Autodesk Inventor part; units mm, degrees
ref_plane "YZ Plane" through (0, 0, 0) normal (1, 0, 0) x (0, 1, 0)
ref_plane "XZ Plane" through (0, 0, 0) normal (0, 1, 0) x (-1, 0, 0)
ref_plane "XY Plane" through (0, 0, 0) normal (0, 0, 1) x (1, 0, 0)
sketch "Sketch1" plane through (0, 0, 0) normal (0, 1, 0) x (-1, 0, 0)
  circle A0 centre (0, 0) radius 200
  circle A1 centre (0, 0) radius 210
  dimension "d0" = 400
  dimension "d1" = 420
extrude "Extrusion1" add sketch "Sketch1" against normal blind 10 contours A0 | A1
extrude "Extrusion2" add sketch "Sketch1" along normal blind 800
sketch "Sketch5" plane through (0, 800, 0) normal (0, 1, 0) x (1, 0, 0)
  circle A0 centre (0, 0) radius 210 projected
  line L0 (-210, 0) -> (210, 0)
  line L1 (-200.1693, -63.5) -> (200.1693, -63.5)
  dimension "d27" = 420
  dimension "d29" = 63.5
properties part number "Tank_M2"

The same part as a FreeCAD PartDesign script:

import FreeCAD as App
import Part
import Sketcher

V = App.Vector
Q = App.Units.Quantity

doc = App.newDocument("Part")
params = doc.addObject("Spreadsheet::Sheet", "Params")
for row, (alias, value) in enumerate([
    ("sketch1_diameter", "420 mm"),
    ("pad1_length", "10 mm"),
    ("sketch2_diameter", "420 mm"),
    ("sketch2_diameter2", "400 mm"),
    ("pad2_length", "800 mm"),
], start=1):
    params.set(f"A{row}", alias)
    params.set(f"B{row}", "=" + value)
    params.setAlias(f"B{row}", alias)

body = doc.addObject("PartDesign::Body", "Body")

sketch1 = body.newObject("Sketcher::SketchObject", "Sketch")
sketch1.AttachmentSupport = (doc.getObject("XZ_Plane"), [""])
sketch1.MapMode = "FlatFace"
sketch1.addGeometry(Part.Circle(V(0, 0, 0), V(0, 0, 1), 210), False)
sketch1.addConstraint([
    Sketcher.Constraint("Coincident", 0, 3, -1, 1),
    Sketcher.Constraint("Diameter", 0, Q("420 mm")),
])
sketch1.setExpression("Constraints[1]", "Params.sketch1_diameter")
pad1 = body.newObject("PartDesign::Pad", "Pad")
pad1.Profile = sketch1
pad1.setExpression("Length", "Params.pad1_length")

sketch2 = body.newObject("Sketcher::SketchObject", "Sketch001")
sketch2.AttachmentSupport = (doc.getObject("XZ_Plane"), [""])
sketch2.MapMode = "FlatFace"
sketch2.addGeometry([
    Part.Circle(V(0, 0, 0), V(0, 0, 1), 210),
    Part.Circle(V(0, 0, 0), V(0, 0, 1), 200),
], False)
sketch2.addConstraint([
    Sketcher.Constraint("Coincident", 0, 3, -1, 1),
    Sketcher.Constraint("Coincident", 1, 3, -1, 1),
    Sketcher.Constraint("Diameter", 0, Q("420 mm")),
    Sketcher.Constraint("Diameter", 1, Q("400 mm")),
])
sketch2.setExpression("Constraints[2]", "Params.sketch2_diameter")
sketch2.setExpression("Constraints[3]", "Params.sketch2_diameter2")
pad2 = body.newObject("PartDesign::Pad", "Pad001")
pad2.Profile = sketch2
pad2.setExpression("Length", "Params.pad2_length")
pad2.Reversed = True

doc.recompute()
